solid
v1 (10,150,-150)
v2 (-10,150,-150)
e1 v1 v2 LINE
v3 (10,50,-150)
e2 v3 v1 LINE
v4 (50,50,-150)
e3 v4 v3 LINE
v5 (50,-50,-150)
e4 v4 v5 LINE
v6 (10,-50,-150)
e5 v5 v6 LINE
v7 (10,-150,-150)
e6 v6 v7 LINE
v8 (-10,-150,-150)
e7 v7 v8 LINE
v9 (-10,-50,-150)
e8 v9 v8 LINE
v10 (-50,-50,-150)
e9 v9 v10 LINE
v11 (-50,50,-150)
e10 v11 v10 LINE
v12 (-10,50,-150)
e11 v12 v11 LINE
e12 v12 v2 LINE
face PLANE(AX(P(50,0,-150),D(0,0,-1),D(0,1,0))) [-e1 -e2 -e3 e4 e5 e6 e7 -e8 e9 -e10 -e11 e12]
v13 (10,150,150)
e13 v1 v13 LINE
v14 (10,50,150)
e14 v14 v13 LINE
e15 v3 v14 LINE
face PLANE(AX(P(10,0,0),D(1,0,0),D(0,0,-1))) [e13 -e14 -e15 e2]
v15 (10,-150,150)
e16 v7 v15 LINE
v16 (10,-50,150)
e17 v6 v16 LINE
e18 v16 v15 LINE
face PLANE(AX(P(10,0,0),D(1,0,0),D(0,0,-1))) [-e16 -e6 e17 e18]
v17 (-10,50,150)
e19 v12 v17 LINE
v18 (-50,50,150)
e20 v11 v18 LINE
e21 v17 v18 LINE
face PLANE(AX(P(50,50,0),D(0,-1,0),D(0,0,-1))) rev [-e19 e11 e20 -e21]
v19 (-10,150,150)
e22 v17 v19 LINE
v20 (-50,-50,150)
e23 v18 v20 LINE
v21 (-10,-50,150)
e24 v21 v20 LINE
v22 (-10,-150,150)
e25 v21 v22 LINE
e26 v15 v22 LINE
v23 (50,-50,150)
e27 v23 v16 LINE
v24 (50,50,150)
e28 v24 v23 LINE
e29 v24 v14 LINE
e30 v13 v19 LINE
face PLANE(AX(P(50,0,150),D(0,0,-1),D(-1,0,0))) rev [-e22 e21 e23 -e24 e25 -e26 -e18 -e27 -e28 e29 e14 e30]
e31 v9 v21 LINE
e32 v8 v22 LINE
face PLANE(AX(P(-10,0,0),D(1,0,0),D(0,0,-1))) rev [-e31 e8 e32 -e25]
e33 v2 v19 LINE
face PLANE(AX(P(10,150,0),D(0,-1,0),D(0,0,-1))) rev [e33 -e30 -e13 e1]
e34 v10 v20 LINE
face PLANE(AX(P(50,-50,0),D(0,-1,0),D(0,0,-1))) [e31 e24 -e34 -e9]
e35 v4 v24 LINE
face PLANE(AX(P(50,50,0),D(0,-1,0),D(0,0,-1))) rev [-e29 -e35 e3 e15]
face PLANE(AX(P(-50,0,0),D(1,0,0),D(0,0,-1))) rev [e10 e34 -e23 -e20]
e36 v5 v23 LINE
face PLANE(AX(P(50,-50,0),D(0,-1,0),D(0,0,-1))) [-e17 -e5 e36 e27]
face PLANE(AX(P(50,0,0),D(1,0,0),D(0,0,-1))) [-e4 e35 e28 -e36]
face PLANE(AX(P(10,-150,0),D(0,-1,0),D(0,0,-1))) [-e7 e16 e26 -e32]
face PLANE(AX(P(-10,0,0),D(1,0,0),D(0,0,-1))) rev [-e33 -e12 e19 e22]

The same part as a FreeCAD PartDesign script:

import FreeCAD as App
import Part
import Sketcher


def add_polygon(sketch, points):
    """Adds a closed chain of lines whose ends are joined by coincident constraints."""
    first, n = sketch.GeometryCount, len(points)
    for a, b in zip(points, points[1:] + points[:1]):
        sketch.addGeometry(Part.LineSegment(App.Vector(*a, 0), App.Vector(*b, 0)), False)
    for i in range(n):
        sketch.addConstraint(Sketcher.Constraint("Coincident", first + i, 2, first + (i + 1) % n, 1))

doc = App.newDocument("Part")
body = doc.addObject("PartDesign::Body", "Body")

sketch1 = doc.addObject("Sketcher::SketchObject", "Sketch")
body.addObject(sketch1)
sketch1.AttachmentSupport = (doc.YZ_Plane, [""])
sketch1.MapMode = "FlatFace"
add_polygon(sketch1, [(50, 150), (-50, 150), (-50, -150), (50, -150)])
sketch1.addConstraint(Sketcher.Constraint("Horizontal", 0))
sketch1.addConstraint(Sketcher.Constraint("Vertical", 1))
sketch1.addConstraint(Sketcher.Constraint("Horizontal", 2))
sketch1.addConstraint(Sketcher.Constraint("Vertical", 3))
sketch1.addConstraint(Sketcher.Constraint("Symmetric", 0, 2, 2, 2, -1, 1))
sketch1.addConstraint(Sketcher.Constraint("DistanceX", 0, 2, 0, 1, 100.0))
sketch1.addConstraint(Sketcher.Constraint("DistanceY", 1, 2, 1, 1, 300.0))
pad1 = doc.addObject("PartDesign::Pad", "Pad")
body.addObject(pad1)
pad1.Profile = sketch1
pad1.Length = 100
pad1.Midplane = True

sketch2 = doc.addObject("Sketcher::SketchObject", "Sketch001")
body.addObject(sketch2)
sketch2.AttachmentSupport = (doc.YZ_Plane, [""])
sketch2.MapMode = "FlatFace"
add_polygon(sketch2, [(150, 150), (50, 150), (50, -150), (150, -150)])
add_polygon(sketch2, [(-50, 150), (-150, 150), (-150, -150), (-50, -150)])
sketch2.addConstraint(Sketcher.Constraint("Horizontal", 0))
sketch2.addConstraint(Sketcher.Constraint("Vertical", 1))
sketch2.addConstraint(Sketcher.Constraint("Horizontal", 2))
sketch2.addConstraint(Sketcher.Constraint("Vertical", 3))
sketch2.addConstraint(Sketcher.Constraint("Horizontal", 4))
sketch2.addConstraint(Sketcher.Constraint("Vertical", 5))
sketch2.addConstraint(Sketcher.Constraint("Horizontal", 6))
sketch2.addConstraint(Sketcher.Constraint("Vertical", 7))
sketch2.addConstraint(Sketcher.Constraint("Symmetric", 2, 2, 4, 2, -1, 1))
sketch2.addConstraint(Sketcher.Constraint("Symmetric", 0, 2, 6, 2, -1, 1))
sketch2.addConstraint(Sketcher.Constraint("Horizontal", 3, 2, 4, 2))
sketch2.addConstraint(Sketcher.Constraint("DistanceX", 0, 2, 0, 1, 100.0))
sketch2.addConstraint(Sketcher.Constraint("DistanceY", 1, 2, 1, 1, 300.0))
sketch2.addConstraint(Sketcher.Constraint("DistanceX", -1, 1, 0, 2, 50.0))
pad2 = doc.addObject("PartDesign::Pad", "Pad001")
body.addObject(pad2)
pad2.Profile = sketch2
pad2.Length = 20
pad2.Midplane = True

doc.recompute()
